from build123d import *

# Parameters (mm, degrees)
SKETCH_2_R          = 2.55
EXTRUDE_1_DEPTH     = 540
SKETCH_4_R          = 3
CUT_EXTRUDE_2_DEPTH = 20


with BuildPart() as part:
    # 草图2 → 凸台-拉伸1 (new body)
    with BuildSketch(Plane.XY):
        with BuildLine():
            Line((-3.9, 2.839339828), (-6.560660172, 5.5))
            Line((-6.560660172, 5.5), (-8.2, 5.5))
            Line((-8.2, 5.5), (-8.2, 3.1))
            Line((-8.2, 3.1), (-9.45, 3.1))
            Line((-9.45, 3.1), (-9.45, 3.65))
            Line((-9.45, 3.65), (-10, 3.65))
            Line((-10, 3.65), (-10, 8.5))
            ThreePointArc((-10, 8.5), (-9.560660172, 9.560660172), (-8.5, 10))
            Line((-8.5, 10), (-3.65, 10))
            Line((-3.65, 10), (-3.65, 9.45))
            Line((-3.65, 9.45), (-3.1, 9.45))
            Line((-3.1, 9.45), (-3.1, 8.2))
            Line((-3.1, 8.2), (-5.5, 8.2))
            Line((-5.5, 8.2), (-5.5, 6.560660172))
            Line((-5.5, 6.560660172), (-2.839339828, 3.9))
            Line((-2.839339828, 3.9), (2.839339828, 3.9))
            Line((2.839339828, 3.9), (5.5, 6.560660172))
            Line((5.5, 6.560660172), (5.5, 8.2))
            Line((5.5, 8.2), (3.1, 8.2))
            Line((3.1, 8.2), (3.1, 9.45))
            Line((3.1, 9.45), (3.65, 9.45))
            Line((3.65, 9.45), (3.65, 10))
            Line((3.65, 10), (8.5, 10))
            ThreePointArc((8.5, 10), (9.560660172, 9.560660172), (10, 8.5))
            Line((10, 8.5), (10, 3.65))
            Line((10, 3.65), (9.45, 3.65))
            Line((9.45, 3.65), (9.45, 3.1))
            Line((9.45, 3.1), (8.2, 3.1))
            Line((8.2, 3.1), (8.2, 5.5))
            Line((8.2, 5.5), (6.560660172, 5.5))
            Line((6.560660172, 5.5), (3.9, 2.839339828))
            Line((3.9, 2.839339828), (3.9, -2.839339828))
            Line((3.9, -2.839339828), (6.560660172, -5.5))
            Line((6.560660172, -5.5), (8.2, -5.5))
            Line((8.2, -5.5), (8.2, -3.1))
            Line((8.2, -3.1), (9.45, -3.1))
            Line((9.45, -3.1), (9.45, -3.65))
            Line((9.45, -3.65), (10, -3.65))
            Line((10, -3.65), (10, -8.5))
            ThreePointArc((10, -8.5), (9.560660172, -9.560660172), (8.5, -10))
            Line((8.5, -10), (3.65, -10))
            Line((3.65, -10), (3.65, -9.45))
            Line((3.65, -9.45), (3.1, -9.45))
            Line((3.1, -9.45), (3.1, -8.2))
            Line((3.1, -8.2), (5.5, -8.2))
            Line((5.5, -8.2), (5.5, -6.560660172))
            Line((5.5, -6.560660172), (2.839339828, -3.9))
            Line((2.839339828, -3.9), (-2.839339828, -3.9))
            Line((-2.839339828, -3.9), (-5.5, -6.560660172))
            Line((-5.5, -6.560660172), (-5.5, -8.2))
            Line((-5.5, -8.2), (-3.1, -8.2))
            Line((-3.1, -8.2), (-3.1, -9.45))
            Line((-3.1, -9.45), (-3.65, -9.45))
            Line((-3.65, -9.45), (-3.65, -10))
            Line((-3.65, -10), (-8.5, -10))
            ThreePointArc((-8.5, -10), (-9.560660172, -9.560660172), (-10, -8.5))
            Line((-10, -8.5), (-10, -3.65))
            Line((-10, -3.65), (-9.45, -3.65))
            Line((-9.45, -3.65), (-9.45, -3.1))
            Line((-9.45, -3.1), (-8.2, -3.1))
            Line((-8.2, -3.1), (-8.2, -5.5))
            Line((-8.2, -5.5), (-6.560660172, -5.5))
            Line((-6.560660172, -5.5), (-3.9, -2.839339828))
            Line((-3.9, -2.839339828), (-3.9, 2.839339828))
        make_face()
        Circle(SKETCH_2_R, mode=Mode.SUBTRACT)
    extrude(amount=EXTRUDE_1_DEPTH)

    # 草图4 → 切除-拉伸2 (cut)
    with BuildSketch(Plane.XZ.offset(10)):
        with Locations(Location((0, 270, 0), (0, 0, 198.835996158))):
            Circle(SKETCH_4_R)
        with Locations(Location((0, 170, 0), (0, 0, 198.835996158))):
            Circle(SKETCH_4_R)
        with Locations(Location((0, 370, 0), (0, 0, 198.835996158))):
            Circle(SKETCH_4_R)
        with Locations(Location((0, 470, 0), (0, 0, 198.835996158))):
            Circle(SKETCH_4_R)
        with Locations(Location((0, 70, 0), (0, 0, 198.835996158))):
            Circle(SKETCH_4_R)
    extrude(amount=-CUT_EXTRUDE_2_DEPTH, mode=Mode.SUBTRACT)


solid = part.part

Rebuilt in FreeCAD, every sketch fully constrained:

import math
import FreeCAD as App
import Part
import Sketcher

V = App.Vector
Q = App.Units.Quantity

doc = App.newDocument("Part")
body = doc.addObject("PartDesign::Body", "Body")

sketch1 = body.newObject("Sketcher::SketchObject", "Sketch")
sketch1.AttachmentSupport = (doc.getObject("XY_Plane"), [""])
sketch1.MapMode = "FlatFace"
sketch1.addGeometry(Part.LineSegment(V(-6.6, 5.5, 0), V(-3.9, 2.8, 0)), False)
sketch1.addGeometry(Part.LineSegment(V(-3.9, 2.8, 0), V(-3.9, -2.8, 0)), False)
sketch1.addGeometry(Part.LineSegment(V(-3.9, -2.8, 0), V(-6.6, -5.5, 0)), False)
sketch1.addGeometry(Part.LineSegment(V(-6.6, -5.5, 0), V(-8.2, -5.5, 0)), False)
sketch1.addGeometry(Part.LineSegment(V(-8.2, -5.5, 0), V(-8.2, -3.1, 0)), False)
sketch1.addGeometry(Part.LineSegment(V(-8.2, -3.1, 0), V(-9.4, -3.1, 0)), False)
sketch1.addGeometry(Part.LineSegment(V(-9.4, -3.1, 0), V(-9.4, -3.6, 0)), False)
sketch1.addGeometry(Part.LineSegment(V(-9.4, -3.6, 0), V(-10, -3.6, 0)), False)
sketch1.addGeometry(Part.LineSegment(V(-10, -3.6, 0), V(-10, -8.5, 0)), False)
sketch1.addGeometry(Part.ArcOfCircle(Part.Circle(V(-8.5, -8.5, 0), V(0, 0, 1), 1.5), math.radians(180), math.radians(270)), False)
sketch1.addGeometry(Part.LineSegment(V(-8.5, -10, 0), V(-3.6, -10, 0)), False)
sketch1.addGeometry(Part.LineSegment(V(-3.6, -10, 0), V(-3.6, -9.4, 0)), False)
sketch1.addGeometry(Part.LineSegment(V(-3.6, -9.4, 0), V(-3.1, -9.4, 0)), False)
sketch1.addGeometry(Part.LineSegment(V(-3.1, -9.4, 0), V(-3.1, -8.2, 0)), False)
sketch1.addGeometry(Part.LineSegment(V(-3.1, -8.2, 0), V(-5.5, -8.2, 0)), False)
sketch1.addGeometry(Part.LineSegment(V(-5.5, -8.2, 0), V(-5.5, -6.6, 0)), False)
sketch1.addGeometry(Part.LineSegment(V(-5.5, -6.6, 0), V(-2.8, -3.9, 0)), False)
sketch1.addGeometry(Part.LineSegment(V(-2.8, -3.9, 0), V(2.8, -3.9, 0)), False)
sketch1.addGeometry(Part.LineSegment(V(2.8, -3.9, 0), V(5.5, -6.6, 0)), False)
sketch1.addGeometry(Part.LineSegment(V(5.5, -6.6, 0), V(5.5, -8.2, 0)), False)
sketch1.addGeometry(Part.LineSegment(V(5.5, -8.2, 0), V(3.1, -8.2, 0)), False)
sketch1.addGeometry(Part.LineSegment(V(3.1, -8.2, 0), V(3.1, -9.4, 0)), False)
sketch1.addGeometry(Part.LineSegment(V(3.1, -9.4, 0), V(3.6, -9.4, 0)), False)
sketch1.addGeometry(Part.LineSegment(V(3.6, -9.4, 0), V(3.6, -10, 0)), False)
sketch1.addGeometry(Part.LineSegment(V(3.6, -10, 0), V(8.5, -10, 0)), False)
sketch1.addGeometry(Part.ArcOfCircle(Part.Circle(V(8.5, -8.5, 0), V(0, 0, 1), 1.5), math.radians(-90), math.radians(0)), False)
sketch1.addGeometry(Part.LineSegment(V(10, -8.5, 0), V(10, -3.6, 0)), False)
sketch1.addGeometry(Part.LineSegment(V(10, -3.6, 0), V(9.4, -3.6, 0)), False)
sketch1.addGeometry(Part.LineSegment(V(9.4, -3.6, 0), V(9.4, -3.1, 0)), False)
sketch1.addGeometry(Part.LineSegment(V(9.4, -3.1, 0), V(8.2, -3.1, 0)), False)
sketch1.addGeometry(Part.LineSegment(V(8.2, -3.1, 0), V(8.2, -5.5, 0)), False)
sketch1.addGeometry(Part.LineSegment(V(8.2, -5.5, 0), V(6.6, -5.5, 0)), False)
sketch1.addGeometry(Part.LineSegment(V(6.6, -5.5, 0), V(3.9, -2.8, 0)), False)
sketch1.addGeometry(Part.LineSegment(V(3.9, -2.8, 0), V(3.9, 2.8, 0)), False)
sketch1.addGeometry(Part.LineSegment(V(3.9, 2.8, 0), V(6.6, 5.5, 0)), False)
sketch1.addGeometry(Part.LineSegment(V(6.6, 5.5, 0), V(8.2, 5.5, 0)), False)
sketch1.addGeometry(Part.LineSegment(V(8.2, 5.5, 0), V(8.2, 3.1, 0)), False)
sketch1.addGeometry(Part.LineSegment(V(8.2, 3.1, 0), V(9.4, 3.1, 0)), False)
sketch1.addGeometry(Part.LineSegment(V(9.4, 3.1, 0), V(9.4, 3.6, 0)), False)
sketch1.addGeometry(Part.LineSegment(V(9.4, 3.6, 0), V(10, 3.6, 0)), False)
sketch1.addGeometry(Part.LineSegment(V(10, 3.6, 0), V(10, 8.5, 0)), False)
sketch1.addGeometry(Part.ArcOfCircle(Part.Circle(V(8.5, 8.5, 0), V(0, 0, 1), 1.5), math.radians(0), math.radians(90)), False)
sketch1.addGeometry(Part.LineSegment(V(8.5, 10, 0), V(3.6, 10, 0)), False)
sketch1.addGeometry(Part.LineSegment(V(3.6, 10, 0), V(3.6, 9.4, 0)), False)
sketch1.addGeometry(Part.LineSegment(V(3.6, 9.4, 0), V(3.1, 9.4, 0)), False)
sketch1.addGeometry(Part.LineSegment(V(3.1, 9.4, 0), V(3.1, 8.2, 0)), False)
sketch1.addGeometry(Part.LineSegment(V(3.1, 8.2, 0), V(5.5, 8.2, 0)), False)
sketch1.addGeometry(Part.LineSegment(V(5.5, 8.2, 0), V(5.5, 6.6, 0)), False)
sketch1.addGeometry(Part.LineSegment(V(5.5, 6.6, 0), V(2.8, 3.9, 0)), False)
sketch1.addGeometry(Part.LineSegment(V(2.8, 3.9, 0), V(-2.8, 3.9, 0)), False)
sketch1.addGeometry(Part.LineSegment(V(-2.8, 3.9, 0), V(-5.5, 6.6, 0)), False)
sketch1.addGeometry(Part.LineSegment(V(-5.5, 6.6, 0), V(-5.5, 8.2, 0)), False)
sketch1.addGeometry(Part.LineSegment(V(-5.5, 8.2, 0), V(-3.1, 8.2, 0)), False)
sketch1.addGeometry(Part.LineSegment(V(-3.1, 8.2, 0), V(-3.1, 9.4, 0)), False)
sketch1.addGeometry(Part.LineSegment(V(-3.1, 9.4, 0), V(-3.6, 9.4, 0)), False)
sketch1.addGeometry(Part.LineSegment(V(-3.6, 9.4, 0), V(-3.6, 10, 0)), False)
sketch1.addGeometry(Part.LineSegment(V(-3.6, 10, 0), V(-8.5, 10, 0)), False)
sketch1.addGeometry(Part.ArcOfCircle(Part.Circle(V(-8.5, 8.5, 0), V(0, 0, 1), 1.5), math.radians(90), math.radians(180)), False)
sketch1.addGeometry(Part.LineSegment(V(-10, 8.5, 0), V(-10, 3.6, 0)), False)
sketch1.addGeometry(Part.LineSegment(V(-10, 3.6, 0), V(-9.4, 3.6, 0)), False)
sketch1.addGeometry(Part.LineSegment(V(-9.4, 3.6, 0), V(-9.4, 3.1, 0)), False)
sketch1.addGeometry(Part.LineSegment(V(-9.4, 3.1, 0), V(-8.2, 3.1, 0)), False)
sketch1.addGeometry(Part.LineSegment(V(-8.2, 3.1, 0), V(-8.2, 5.5, 0)), False)
sketch1.addGeometry(Part.LineSegment(V(-8.2, 5.5, 0), V(-6.6, 5.5, 0)), False)
sketch1.addGeometry(Part.Circle(V(0, 0, 0), V(0, 0, 1), 2.5), False)
sketch1.addConstraint(Sketcher.Constraint("Coincident", 0, 2, 1, 1))
sketch1.addConstraint(Sketcher.Constraint("Coincident", 1, 2, 2, 1))
sketch1.addConstraint(Sketcher.Constraint("Coincident", 2, 2, 3, 1))
sketch1.addConstraint(Sketcher.Constraint("Coincident", 3, 2, 4, 1))
sketch1.addConstraint(Sketcher.Constraint("Coincident", 4, 2, 5, 1))
sketch1.addConstraint(Sketcher.Constraint("Coincident", 5, 2, 6, 1))
sketch1.addConstraint(Sketcher.Constraint("Coincident", 6, 2, 7, 1))
sketch1.addConstraint(Sketcher.Constraint("Coincident", 7, 2, 8, 1))
sketch1.addConstraint(Sketcher.Constraint("Tangent", 8, 2, 9, 1))
sketch1.addConstraint(Sketcher.Constraint("Tangent", 9, 2, 10, 1))
sketch1.addConstraint(Sketcher.Constraint("Coincident", 10, 2, 11, 1))
sketch1.addConstraint(Sketcher.Constraint("Coincident", 11, 2, 12, 1))
sketch1.addConstraint(Sketcher.Constraint("Coincident", 12, 2, 13, 1))
sketch1.addConstraint(Sketcher.Constraint("Coincident", 13, 2, 14, 1))
sketch1.addConstraint(Sketcher.Constraint("Coincident", 14, 2, 15, 1))
sketch1.addConstraint(Sketcher.Constraint("Coincident", 15, 2, 16, 1))
sketch1.addConstraint(Sketcher.Constraint("Coincident", 16, 2, 17, 1))
sketch1.addConstraint(Sketcher.Constraint("Coincident", 17, 2, 18, 1))
sketch1.addConstraint(Sketcher.Constraint("Coincident", 18, 2, 19, 1))
sketch1.addConstraint(Sketcher.Constraint("Coincident", 19, 2, 20, 1))
sketch1.addConstraint(Sketcher.Constraint("Coincident", 20, 2, 21, 1))
sketch1.addConstraint(Sketcher.Constraint("Coincident", 21, 2, 22, 1))
sketch1.addConstraint(Sketcher.Constraint("Coincident", 22, 2, 23, 1))
sketch1.addConstraint(Sketcher.Constraint("Coincident", 23, 2, 24, 1))
sketch1.addConstraint(Sketcher.Constraint("Tangent", 24, 2, 25, 1))
sketch1.addConstraint(Sketcher.Constraint("Tangent", 25, 2, 26, 1))
sketch1.addConstraint(Sketcher.Constraint("Coincident", 26, 2, 27, 1))
sketch1.addConstraint(Sketcher.Constraint("Coincident", 27, 2, 28, 1))
sketch1.addConstraint(Sketcher.Constraint("Coincident", 28, 2, 29, 1))
sketch1.addConstraint(Sketcher.Constraint("Coincident", 29, 2, 30, 1))
sketch1.addConstraint(Sketcher.Constraint("Coincident", 30, 2, 31, 1))
sketch1.addConstraint(Sketcher.Constraint("Coincident", 31, 2, 32, 1))
sketch1.addConstraint(Sketcher.Constraint("Coincident", 32, 2, 33, 1))
sketch1.addConstraint(Sketcher.Constraint("Coincident", 33, 2, 34, 1))
sketch1.addConstraint(Sketcher.Constraint("Coincident", 34, 2, 35, 1))
sketch1.addConstraint(Sketcher.Constraint("Coincident", 35, 2, 36, 1))
sketch1.addConstraint(Sketcher.Constraint("Coincident", 36, 2, 37, 1))
sketch1.addConstraint(Sketcher.Constraint("Coincident", 37, 2, 38, 1))
sketch1.addConstraint(Sketcher.Constraint("Coincident", 38, 2, 39, 1))
sketch1.addConstraint(Sketcher.Constraint("Coincident", 39, 2, 40, 1))
sketch1.addConstraint(Sketcher.Constraint("Tangent", 40, 2, 41, 1))
sketch1.addConstraint(Sketcher.Constraint("Tangent", 41, 2, 42, 1))
sketch1.addConstraint(Sketcher.Constraint("Coincident", 42, 2, 43, 1))
sketch1.addConstraint(Sketcher.Constraint("Coincident", 43, 2, 44, 1))
sketch1.addConstraint(Sketcher.Constraint("Coincident", 44, 2, 45, 1))
sketch1.addConstraint(Sketcher.Constraint("Coincident", 45, 2, 46, 1))
sketch1.addConstraint(Sketcher.Constraint("Coincident", 46, 2, 47, 1))
sketch1.addConstraint(Sketcher.Constraint("Coincident", 47, 2, 48, 1))
sketch1.addConstraint(Sketcher.Constraint("Coincident", 48, 2, 49, 1))
sketch1.addConstraint(Sketcher.Constraint("Coincident", 49, 2, 50, 1))
sketch1.addConstraint(Sketcher.Constraint("Coincident", 50, 2, 51, 1))
sketch1.addConstraint(Sketcher.Constraint("Coincident", 51, 2, 52, 1))
sketch1.addConstraint(Sketcher.Constraint("Coincident", 52, 2, 53, 1))
sketch1.addConstraint(Sketcher.Constraint("Coincident", 53, 2, 54, 1))
sketch1.addConstraint(Sketcher.Constraint("Coincident", 54, 2, 55, 1))
sketch1.addConstraint(Sketcher.Constraint("Coincident", 55, 2, 56, 1))
sketch1.addConstraint(Sketcher.Constraint("Tangent", 56, 2, 57, 1))
sketch1.addConstraint(Sketcher.Constraint("Tangent", 57, 2, 58, 1))
sketch1.addConstraint(Sketcher.Constraint("Coincident", 58, 2, 59, 1))
sketch1.addConstraint(Sketcher.Constraint("Coincident", 59, 2, 60, 1))
sketch1.addConstraint(Sketcher.Constraint("Coincident", 60, 2, 61, 1))
sketch1.addConstraint(Sketcher.Constraint("Coincident", 61, 2, 62, 1))
sketch1.addConstraint(Sketcher.Constraint("Coincident", 62, 2, 63, 1))
sketch1.addConstraint(Sketcher.Constraint("Coincident", 63, 2, 0, 1))
sketch1.addConstraint(Sketcher.Constraint("Vertical", 1))
sketch1.addConstraint(Sketcher.Constraint("Horizontal", 3))
sketch1.addConstraint(Sketcher.Constraint("Vertical", 4))
sketch1.addConstraint(Sketcher.Constraint("Horizontal", 5))
sketch1.addConstraint(Sketcher.Constraint("Vertical", 6))
sketch1.addConstraint(Sketcher.Constraint("Horizontal", 7))
sketch1.addConstraint(Sketcher.Constraint("Vertical", 8))
sketch1.addConstraint(Sketcher.Constraint("Horizontal", 10))
sketch1.addConstraint(Sketcher.Constraint("Vertical", 11))
sketch1.addConstraint(Sketcher.Constraint("Horizontal", 12))
sketch1.addConstraint(Sketcher.Constraint("Vertical", 13))
sketch1.addConstraint(Sketcher.Constraint("Horizontal", 14))
sketch1.addConstraint(Sketcher.Constraint("Vertical", 15))
sketch1.addConstraint(Sketcher.Constraint("Horizontal", 17))
sketch1.addConstraint(Sketcher.Constraint("Vertical", 19))
sketch1.addConstraint(Sketcher.Constraint("Horizontal", 20))
sketch1.addConstraint(Sketcher.Constraint("Vertical", 21))
sketch1.addConstraint(Sketcher.Constraint("Horizontal", 22))
sketch1.addConstraint(Sketcher.Constraint("Vertical", 23))
sketch1.addConstraint(Sketcher.Constraint("Horizontal", 24))
sketch1.addConstraint(Sketcher.Constraint("Vertical", 26))
sketch1.addConstraint(Sketcher.Constraint("Horizontal", 27))
sketch1.addConstraint(Sketcher.Constraint("Vertical", 28))
sketch1.addConstraint(Sketcher.Constraint("Horizontal", 29))
sketch1.addConstraint(Sketcher.Constraint("Vertical", 30))
sketch1.addConstraint(Sketcher.Constraint("Horizontal", 31))
sketch1.addConstraint(Sketcher.Constraint("Vertical", 33))
sketch1.addConstraint(Sketcher.Constraint("Horizontal", 35))
sketch1.addConstraint(Sketcher.Constraint("Vertical", 36))
sketch1.addConstraint(Sketcher.Constraint("Horizontal", 37))
sketch1.addConstraint(Sketcher.Constraint("Vertical", 38))
sketch1.addConstraint(Sketcher.Constraint("Horizontal", 39))
sketch1.addConstraint(Sketcher.Constraint("Vertical", 40))
sketch1.addConstraint(Sketcher.Constraint("Horizontal", 42))
sketch1.addConstraint(Sketcher.Constraint("Vertical", 43))
sketch1.addConstraint(Sketcher.Constraint("Horizontal", 44))
sketch1.addConstraint(Sketcher.Constraint("Vertical", 45))
sketch1.addConstraint(Sketcher.Constraint("Horizontal", 46))
sketch1.addConstraint(Sketcher.Constraint("Vertical", 47))
sketch1.addConstraint(Sketcher.Constraint("Horizontal", 49))
sketch1.addConstraint(Sketcher.Constraint("Vertical", 51))
sketch1.addConstraint(Sketcher.Constraint("Horizontal", 52))
sketch1.addConstraint(Sketcher.Constraint("Vertical", 53))
sketch1.addConstraint(Sketcher.Constraint("Horizontal", 54))
sketch1.addConstraint(Sketcher.Constraint("Vertical", 55))
sketch1.addConstraint(Sketcher.Constraint("Horizontal", 56))
sketch1.addConstraint(Sketcher.Constraint("Vertical", 58))
sketch1.addConstraint(Sketcher.Constraint("Horizontal", 59))
sketch1.addConstraint(Sketcher.Constraint("Vertical", 60))
sketch1.addConstraint(Sketcher.Constraint("Horizontal", 61))
sketch1.addConstraint(Sketcher.Constraint("Vertical", 62))
sketch1.addConstraint(Sketcher.Constraint("Horizontal", 63))
sketch1.addConstraint(Sketcher.Constraint("Coincident", 64, 3, -1, 1))
sketch1.addConstraint(Sketcher.Constraint("Equal", 9, 25))
sketch1.addConstraint(Sketcher.Constraint("Equal", 25, 41))
sketch1.addConstraint(Sketcher.Constraint("Equal", 41, 57))
sketch1.addConstraint(Sketcher.Constraint("Symmetric", 9, 3, 41, 3, -1, 1))
sketch1.addConstraint(Sketcher.Constraint("Symmetric", 25, 3, 57, 3, -1, 1))
sketch1.addConstraint(Sketcher.Constraint("Symmetric", 0, 2, 32, 2, -1, 1))
sketch1.addConstraint(Sketcher.Constraint("Symmetric", 2, 2, 34, 2, -1, 1))
sketch1.addConstraint(Sketcher.Constraint("Symmetric", 4, 2, 36, 2, -1, 1))
sketch1.addConstraint(Sketcher.Constraint("Symmetric", 6, 2, 38, 2, -1, 1))
sketch1.addConstraint(Sketcher.Constraint("Symmetric", 11, 2, 43, 2, -1, 1))
sketch1.addConstraint(Sketcher.Constraint("Symmetric", 13, 2, 45, 2, -1, 1))
sketch1.addConstraint(Sketcher.Constraint("Symmetric", 15, 2, 47, 2, -1, 1))
sketch1.addConstraint(Sketcher.Constraint("Symmetric", 16, 2, 48, 2, -1, 1))
sketch1.addConstraint(Sketcher.Constraint("Symmetric", 18, 2, 50, 2, -1, 1))
sketch1.addConstraint(Sketcher.Constraint("Symmetric", 20, 2, 52, 2, -1, 1))
sketch1.addConstraint(Sketcher.Constraint("Symmetric", 22, 2, 54, 2, -1, 1))
sketch1.addConstraint(Sketcher.Constraint("Symmetric", 27, 2, 59, 2, -1, 1))
sketch1.addConstraint(Sketcher.Constraint("Symmetric", 29, 2, 61, 2, -1, 1))
sketch1.addConstraint(Sketcher.Constraint("Symmetric", 31, 2, 63, 2, -1, 1))
sketch1.addConstraint(Sketcher.Constraint("Symmetric", 9, 3, 25, 3, -2))
sketch1.addConstraint(Sketcher.Constraint("Symmetric", 15, 2, 18, 2, -2))
sketch1.addConstraint(Sketcher.Constraint("Symmetric", 13, 2, 20, 2, -2))
sketch1.addConstraint(Sketcher.Constraint("Symmetric", 11, 2, 22, 2, -2))
sketch1.addConstraint(Sketcher.Constraint("Symmetric", 6, 2, 27, 2, -2))
sketch1.addConstraint(Sketcher.Constraint("Symmetric", 4, 2, 29, 2, -2))
sketch1.addConstraint(Sketcher.Constraint("Symmetric", 2, 2, 31, 2, -2))
sketch1.addConstraint(Sketcher.Constraint("Perpendicular", 0, 2))
sketch1.addConstraint(Sketcher.Constraint("Parallel", 2, 16))
sketch1.addConstraint(Sketcher.Constraint("Perpendicular", 16, 18))
sketch1.addConstraint(Sketcher.Constraint("Perpendicular", 32, 34))
sketch1.addConstraint(Sketcher.Constraint("Perpendicular", 48, 50))
sketch1.addConstraint(Sketcher.Constraint("Horizontal", 1, 2, 32, 2))
sketch1.addConstraint(Sketcher.Constraint("Equal", 7, 12))
sketch1.addConstraint(Sketcher.Constraint("Equal", 49, 1))
sketch1.addConstraint(Sketcher.Constraint("Equal", 52, 4))
sketch1.addConstraint(Sketcher.Constraint("Equal", 59, 6))
sketch1.addConstraint(Sketcher.Constraint("Equal", 56, 8))
sketch1.addConstraint(Sketcher.Constraint("Equal", 6, 11))
sketch1.addConstraint(Sketcher.Constraint("Equal", 61, 13))
sketch1.addConstraint(Sketcher.Constraint("Equal", 63, 15))
sketch1.addConstraint(Sketcher.Constraint("Equal", 2, 16))
sketch1.addConstraint(Sketcher.Constraint("Diameter", 64, Q("5.1 mm")))
sketch1.addConstraint(Sketcher.Constraint("Radius", 9, Q("1.5 mm")))
sketch1.addConstraint(Sketcher.Constraint("DistanceX", 14, 2, 14, 1, Q("2.4 mm")))
sketch1.addConstraint(Sketcher.Constraint("DistanceX", 7, 2, -1, 1, Q("10 mm")))
sketch1.addConstraint(Sketcher.Constraint("DistanceX", 5, 2, 5, 1, Q("1.25 mm")))
sketch1.addConstraint(Sketcher.Constraint("DistanceX", 7, 2, 7, 1, Q("0.55 mm")))
sketch1.addConstraint(Sketcher.Constraint("DistanceX", 10, 1, 10, 2, Q("4.85 mm")))
sketch1.addConstraint(Sketcher.Constraint("DistanceX", 0, 2, -1, 1, Q("3.9 mm")))
sketch1.addConstraint(Sketcher.Constraint("DistanceX", 3, 2, 3, 1, Q("1.63934 mm")))
pad1 = body.newObject("PartDesign::Pad", "Pad")
pad1.Profile = sketch1
pad1.Length = 540

sketch2 = body.newObject("Sketcher::SketchObject", "Sketch001")
sketch2.AttachmentSupport = (doc.getObject("XZ_Plane"), [""])
sketch2.MapMode = "FlatFace"
sketch2.AttachmentOffset = App.Placement(V(0, 0, 10), App.Rotation())
sketch2.addGeometry(Part.Circle(V(0, 270, 0), V(0, 0, 1), 3), False)
sketch2.addGeometry(Part.Circle(V(0, 170, 0), V(0, 0, 1), 3), False)
sketch2.addGeometry(Part.Circle(V(0, 370, 0), V(0, 0, 1), 3), False)
sketch2.addGeometry(Part.Circle(V(0, 470, 0), V(0, 0, 1), 3), False)
sketch2.addGeometry(Part.Circle(V(0, 70, 0), V(0, 0, 1), 3), False)
sketch2.addConstraint(Sketcher.Constraint("Equal", 0, 1))
sketch2.addConstraint(Sketcher.Constraint("Equal", 1, 2))
sketch2.addConstraint(Sketcher.Constraint("Equal", 2, 3))
sketch2.addConstraint(Sketcher.Constraint("Equal", 3, 4))
sketch2.addConstraint(Sketcher.Constraint("PointOnObject", 0, 3, -2))
sketch2.addConstraint(Sketcher.Constraint("PointOnObject", 1, 3, -2))
sketch2.addConstraint(Sketcher.Constraint("PointOnObject", 2, 3, -2))
sketch2.addConstraint(Sketcher.Constraint("PointOnObject", 3, 3, -2))
sketch2.addConstraint(Sketcher.Constraint("PointOnObject", 4, 3, -2))
sketch2.addConstraint(Sketcher.Constraint("Diameter", 0, Q("6 mm")))
sketch2.addConstraint(Sketcher.Constraint("DistanceY", -1, 1, 0, 3, Q("270 mm")))
sketch2.addConstraint(Sketcher.Constraint("DistanceY", -1, 1, 1, 3, Q("170 mm")))
sketch2.addConstraint(Sketcher.Constraint("DistanceY", -1, 1, 2, 3, Q("370 mm")))
sketch2.addConstraint(Sketcher.Constraint("DistanceY", -1, 1, 3, 3, Q("470 mm")))
sketch2.addConstraint(Sketcher.Constraint("DistanceY", -1, 1, 4, 3, Q("70 mm")))
pocket1 = body.newObject("PartDesign::Pocket", "Pocket")
pocket1.Profile = sketch2
pocket1.Length = 20

doc.recompute()
